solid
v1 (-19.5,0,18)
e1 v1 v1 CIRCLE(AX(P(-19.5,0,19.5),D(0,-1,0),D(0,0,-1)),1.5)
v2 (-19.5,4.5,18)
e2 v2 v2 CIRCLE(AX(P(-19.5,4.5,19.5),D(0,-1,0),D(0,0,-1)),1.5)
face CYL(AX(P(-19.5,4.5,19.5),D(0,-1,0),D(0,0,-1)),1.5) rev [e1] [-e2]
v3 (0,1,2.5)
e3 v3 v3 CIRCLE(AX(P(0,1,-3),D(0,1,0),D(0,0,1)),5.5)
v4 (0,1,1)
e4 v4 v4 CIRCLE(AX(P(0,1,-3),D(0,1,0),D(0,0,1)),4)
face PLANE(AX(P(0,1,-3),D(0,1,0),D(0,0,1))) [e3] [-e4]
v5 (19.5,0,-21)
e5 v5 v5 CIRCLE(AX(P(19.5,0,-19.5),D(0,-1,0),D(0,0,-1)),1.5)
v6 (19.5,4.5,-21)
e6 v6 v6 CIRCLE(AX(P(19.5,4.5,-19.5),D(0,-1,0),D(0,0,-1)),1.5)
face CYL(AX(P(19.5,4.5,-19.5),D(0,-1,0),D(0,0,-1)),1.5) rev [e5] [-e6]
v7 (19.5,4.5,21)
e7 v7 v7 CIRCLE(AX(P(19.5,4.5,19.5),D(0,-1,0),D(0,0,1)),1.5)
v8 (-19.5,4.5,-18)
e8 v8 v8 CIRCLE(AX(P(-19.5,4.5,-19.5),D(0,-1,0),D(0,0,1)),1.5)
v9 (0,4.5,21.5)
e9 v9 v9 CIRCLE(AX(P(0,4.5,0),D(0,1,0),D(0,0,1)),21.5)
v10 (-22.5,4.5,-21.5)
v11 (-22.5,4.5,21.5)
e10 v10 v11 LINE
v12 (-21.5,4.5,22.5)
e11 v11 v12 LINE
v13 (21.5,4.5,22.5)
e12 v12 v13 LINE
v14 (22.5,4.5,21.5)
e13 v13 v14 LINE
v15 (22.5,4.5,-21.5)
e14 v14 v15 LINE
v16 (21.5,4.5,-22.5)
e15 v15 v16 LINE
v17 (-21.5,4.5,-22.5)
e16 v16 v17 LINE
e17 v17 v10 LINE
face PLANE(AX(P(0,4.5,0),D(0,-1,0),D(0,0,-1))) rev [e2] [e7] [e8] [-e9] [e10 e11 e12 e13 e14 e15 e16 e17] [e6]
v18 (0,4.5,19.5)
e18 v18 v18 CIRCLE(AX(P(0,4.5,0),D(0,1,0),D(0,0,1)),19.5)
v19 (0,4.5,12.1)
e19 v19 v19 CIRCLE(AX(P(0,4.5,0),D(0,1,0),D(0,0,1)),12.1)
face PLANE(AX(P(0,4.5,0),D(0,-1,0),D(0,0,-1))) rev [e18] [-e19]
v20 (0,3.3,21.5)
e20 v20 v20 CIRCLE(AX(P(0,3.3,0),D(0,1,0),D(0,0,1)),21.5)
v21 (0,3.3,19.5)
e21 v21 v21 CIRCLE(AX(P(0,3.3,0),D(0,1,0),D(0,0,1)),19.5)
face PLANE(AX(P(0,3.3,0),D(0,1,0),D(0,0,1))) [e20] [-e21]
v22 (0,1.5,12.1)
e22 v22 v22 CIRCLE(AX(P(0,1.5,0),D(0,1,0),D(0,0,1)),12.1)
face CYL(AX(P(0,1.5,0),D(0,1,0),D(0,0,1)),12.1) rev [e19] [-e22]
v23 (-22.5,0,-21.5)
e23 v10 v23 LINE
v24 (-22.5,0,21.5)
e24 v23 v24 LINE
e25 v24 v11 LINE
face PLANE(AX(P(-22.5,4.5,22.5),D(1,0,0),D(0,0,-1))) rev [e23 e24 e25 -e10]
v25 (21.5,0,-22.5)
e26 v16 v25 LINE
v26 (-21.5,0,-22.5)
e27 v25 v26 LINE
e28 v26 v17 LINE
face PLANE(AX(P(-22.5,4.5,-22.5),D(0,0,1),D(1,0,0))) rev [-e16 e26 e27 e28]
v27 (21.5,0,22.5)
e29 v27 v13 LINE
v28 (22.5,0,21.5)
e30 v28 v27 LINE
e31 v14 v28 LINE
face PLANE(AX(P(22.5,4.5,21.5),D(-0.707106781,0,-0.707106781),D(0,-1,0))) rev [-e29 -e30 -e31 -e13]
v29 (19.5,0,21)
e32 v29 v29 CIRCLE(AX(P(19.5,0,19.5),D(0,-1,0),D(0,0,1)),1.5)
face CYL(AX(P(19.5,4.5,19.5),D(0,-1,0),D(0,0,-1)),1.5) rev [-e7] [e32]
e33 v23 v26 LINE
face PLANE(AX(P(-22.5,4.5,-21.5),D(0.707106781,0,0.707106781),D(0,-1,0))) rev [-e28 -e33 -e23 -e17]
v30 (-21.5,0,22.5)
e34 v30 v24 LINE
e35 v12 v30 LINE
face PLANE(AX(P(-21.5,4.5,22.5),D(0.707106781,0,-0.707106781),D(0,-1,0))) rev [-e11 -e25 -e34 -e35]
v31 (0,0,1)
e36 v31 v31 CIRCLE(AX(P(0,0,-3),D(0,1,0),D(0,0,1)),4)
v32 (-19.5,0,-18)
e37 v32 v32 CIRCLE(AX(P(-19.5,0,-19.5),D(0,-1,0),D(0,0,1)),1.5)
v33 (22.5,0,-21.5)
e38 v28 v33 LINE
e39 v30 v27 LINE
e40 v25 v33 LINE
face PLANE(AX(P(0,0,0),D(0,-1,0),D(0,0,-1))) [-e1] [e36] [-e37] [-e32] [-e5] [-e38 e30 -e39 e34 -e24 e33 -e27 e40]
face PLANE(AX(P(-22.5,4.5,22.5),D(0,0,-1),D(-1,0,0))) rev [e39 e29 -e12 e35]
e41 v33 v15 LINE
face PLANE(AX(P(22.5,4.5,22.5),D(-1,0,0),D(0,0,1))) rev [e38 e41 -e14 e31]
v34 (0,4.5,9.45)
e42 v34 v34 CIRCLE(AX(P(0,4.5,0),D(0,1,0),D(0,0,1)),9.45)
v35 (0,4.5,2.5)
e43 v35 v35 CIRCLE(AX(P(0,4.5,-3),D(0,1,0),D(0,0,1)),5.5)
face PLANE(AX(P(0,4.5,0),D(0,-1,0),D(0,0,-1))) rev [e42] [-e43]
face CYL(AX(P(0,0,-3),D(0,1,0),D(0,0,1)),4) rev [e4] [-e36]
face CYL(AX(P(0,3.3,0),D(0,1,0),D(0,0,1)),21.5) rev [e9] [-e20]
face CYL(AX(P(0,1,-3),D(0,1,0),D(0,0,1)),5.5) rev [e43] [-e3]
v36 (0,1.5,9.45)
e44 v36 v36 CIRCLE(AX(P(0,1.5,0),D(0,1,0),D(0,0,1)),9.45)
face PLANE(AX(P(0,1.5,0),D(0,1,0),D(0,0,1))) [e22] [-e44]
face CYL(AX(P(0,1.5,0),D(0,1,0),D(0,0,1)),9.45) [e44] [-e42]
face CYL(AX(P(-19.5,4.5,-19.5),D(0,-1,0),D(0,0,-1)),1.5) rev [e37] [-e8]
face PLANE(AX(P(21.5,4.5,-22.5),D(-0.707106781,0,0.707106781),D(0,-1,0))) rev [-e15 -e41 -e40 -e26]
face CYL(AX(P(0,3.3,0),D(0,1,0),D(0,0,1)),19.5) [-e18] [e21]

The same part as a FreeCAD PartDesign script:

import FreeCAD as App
import Part
import Sketcher
from FreeCAD import Vector


def edges_at(feature, points):
    """Names of the edges that pass closest to the given points."""
    edges = feature.Shape.Edges
    near = lambda p: min(range(len(edges)), key=lambda i: edges[i].distToShape(Part.Vertex(*p))[0])
    return sorted({f"Edge{near(p) + 1}" for p in points})

doc = App.newDocument("Part")
body = doc.addObject("PartDesign::Body", "Body")

# Sketch on XZ plane
sketch1 = body.newObject("Sketcher::SketchObject", "Sketch")
sketch1.AttachmentSupport = (doc.getObject("XZ_Plane"), [""])
sketch1.MapMode = "FlatFace"
sketch1.addGeometry(Part.LineSegment(Vector(-22, -22, 0), Vector(-22, 22, 0)), False)
sketch1.addGeometry(Part.LineSegment(Vector(-22, 22, 0), Vector(22, 22, 0)), False)
sketch1.addGeometry(Part.LineSegment(Vector(22, 22, 0), Vector(22, -22, 0)), False)
sketch1.addGeometry(Part.LineSegment(Vector(22, -22, 0), Vector(-22, -22, 0)), False)
sketch1.addConstraint(Sketcher.Constraint("Coincident", 0, 2, 1, 1))
sketch1.addConstraint(Sketcher.Constraint("Coincident", 1, 2, 2, 1))
sketch1.addConstraint(Sketcher.Constraint("Coincident", 2, 2, 3, 1))
sketch1.addConstraint(Sketcher.Constraint("Coincident", 3, 2, 0, 1))
sketch1.addConstraint(Sketcher.Constraint("Vertical", 0))
sketch1.addConstraint(Sketcher.Constraint("Horizontal", 1))
sketch1.addConstraint(Sketcher.Constraint("Vertical", 2))
sketch1.addConstraint(Sketcher.Constraint("Horizontal", 3))
sketch1.addConstraint(Sketcher.Constraint("Symmetric", 0, 2, 2, 2, -1, 1))
sketch1.addConstraint(Sketcher.Constraint("Equal", 3, 0))
sketch1.addConstraint(Sketcher.Constraint("DistanceX", 1, 1, 1, 2, 45.0))
pad1 = body.newObject("PartDesign::Pad", "Pad")
pad1.Profile = sketch1
pad1.Length = 4.5
pad1.Reversed = True

# Sketch on XZ plane
sketch2 = body.newObject("Sketcher::SketchObject", "Sketch001")
sketch2.AttachmentSupport = (doc.getObject("XZ_Plane"), [""])
sketch2.MapMode = "FlatFace"
sketch2.AttachmentOffset = App.Placement(Vector(0, 0, -4.5), App.Rotation())
sketch2.addGeometry(Part.Circle(Vector(0, -3, 0), Vector(0, 0, 1), 6), False)
sketch2.addConstraint(Sketcher.Constraint("PointOnObject", 0, 3, -2))
sketch2.addConstraint(Sketcher.Constraint("Diameter", 0, 11.0))
sketch2.addConstraint(Sketcher.Constraint("DistanceY", 0, 3, -1, 1, 3.0))
pocket1 = body.newObject("PartDesign::Pocket", "Pocket")
pocket1.Profile = sketch2
pocket1.Length = 3.5
pocket1.Reversed = True

# Sketch on XZ plane
sketch3 = body.newObject("Sketcher::SketchObject", "Sketch002")
sketch3.AttachmentSupport = (doc.getObject("XZ_Plane"), [""])
sketch3.MapMode = "FlatFace"
sketch3.AttachmentOffset = App.Placement(Vector(0, 0, -1), App.Rotation())
sketch3.addGeometry(Part.Circle(Vector(0, -3, 0), Vector(0, 0, 1), 4), False)
sketch3.addConstraint(Sketcher.Constraint("PointOnObject", 0, 3, -2))
sketch3.addConstraint(Sketcher.Constraint("Diameter", 0, 8.0))
sketch3.addConstraint(Sketcher.Constraint("DistanceY", 0, 3, -1, 1, 3.0))
pocket2 = body.newObject("PartDesign::Pocket", "Pocket001")
pocket2.Profile = sketch3
pocket2.Type = "ThroughAll"
pocket2.Reversed = True

# Sketch on XZ plane
sketch4 = body.newObject("Sketcher::SketchObject", "Sketch003")
sketch4.AttachmentSupport = (doc.getObject("XZ_Plane"), [""])
sketch4.MapMode = "FlatFace"
sketch4.AttachmentOffset = App.Placement(Vector(0, 0, -4.5), App.Rotation())
sketch4.addGeometry(Part.Circle(Vector(0, 0, 0), Vector(0, 0, 1), 12), False)
sketch4.addGeometry(Part.Circle(Vector(0, 0, 0), Vector(0, 0, 1), 9), False)
sketch4.addConstraint(Sketcher.Constraint("Coincident", 0, 3, -1, 1))
sketch4.addConstraint(Sketcher.Constraint("Coincident", 1, 3, -1, 1))
sketch4.addConstraint(Sketcher.Constraint("Diameter", 0, 24.2))
sketch4.addConstraint(Sketcher.Constraint("Diameter", 1, 18.9))
pocket3 = body.newObject("PartDesign::Pocket", "Pocket002")
pocket3.Profile = sketch4
pocket3.Length = 3
pocket3.Reversed = True

# Sketch on XZ plane
sketch5 = body.newObject("Sketcher::SketchObject", "Sketch004")
sketch5.AttachmentSupport = (doc.getObject("XZ_Plane"), [""])
sketch5.MapMode = "FlatFace"
sketch5.AttachmentOffset = App.Placement(Vector(0, 0, -4.5), App.Rotation())
sketch5.addGeometry(Part.Circle(Vector(0, 0, 0), Vector(0, 0, 1), 22), False)
sketch5.addGeometry(Part.Circle(Vector(0, 0, 0), Vector(0, 0, 1), 20), False)
sketch5.addConstraint(Sketcher.Constraint("Coincident", 0, 3, -1, 1))
sketch5.addConstraint(Sketcher.Constraint("Coincident", 1, 3, -1, 1))
sketch5.addConstraint(Sketcher.Constraint("Diameter", 0, 43.0))
sketch5.addConstraint(Sketcher.Constraint("Diameter", 1, 39.0))
pocket4 = body.newObject("PartDesign::Pocket", "Pocket003")
pocket4.Profile = sketch5
pocket4.Length = 1.2
pocket4.Reversed = True
doc.recompute()

chamfer = body.newObject("PartDesign::Chamfer", "Chamfer")
chamfer.Base = (pocket4, edges_at(pocket4, [
    (22.5, 2.25, 22.5),
    (-22.5, 2.25, 22.5),
    (-22.5, 2.25, -22.5),
    (22.5, 2.25, -22.5),
]))
chamfer.Size = 1

# Sketch on XZ plane
sketch6 = body.newObject("Sketcher::SketchObject", "Sketch005")
sketch6.AttachmentSupport = (doc.getObject("XZ_Plane"), [""])
sketch6.MapMode = "FlatFace"
sketch6.addGeometry(Part.Circle(Vector(-19.5, 19.5, 0), Vector(0, 0, 1), 1.5), False)
sketch6.addGeometry(Part.Circle(Vector(19.5, 19.5, 0), Vector(0, 0, 1), 1.5), False)
sketch6.addGeometry(Part.Circle(Vector(19.5, -19.5, 0), Vector(0, 0, 1), 1.5), False)
sketch6.addGeometry(Part.Circle(Vector(-19.5, -19.5, 0), Vector(0, 0, 1), 1.5), False)
sketch6.addConstraint(Sketcher.Constraint("Equal", 0, 1))
sketch6.addConstraint(Sketcher.Constraint("Equal", 1, 2))
sketch6.addConstraint(Sketcher.Constraint("Equal", 2, 3))
sketch6.addConstraint(Sketcher.Constraint("Symmetric", 0, 3, 2, 3, -1, 1))
sketch6.addConstraint(Sketcher.Constraint("Symmetric", 1, 3, 3, 3, -1, 1))
sketch6.addConstraint(Sketcher.Constraint("Symmetric", 0, 3, 1, 3, -2))
sketch6.addConstraint(Sketcher.Constraint("Diameter", 0, 3.0))
sketch6.addConstraint(Sketcher.Constraint("DistanceX", 0, 3, 1, 3, 39.0))
sketch6.addConstraint(Sketcher.Constraint("DistanceY", 2, 3, 1, 3, 39.0))
pocket5 = body.newObject("PartDesign::Pocket", "Pocket004")
pocket5.Profile = sketch6
pocket5.Type = "ThroughAll"

doc.recompute()
